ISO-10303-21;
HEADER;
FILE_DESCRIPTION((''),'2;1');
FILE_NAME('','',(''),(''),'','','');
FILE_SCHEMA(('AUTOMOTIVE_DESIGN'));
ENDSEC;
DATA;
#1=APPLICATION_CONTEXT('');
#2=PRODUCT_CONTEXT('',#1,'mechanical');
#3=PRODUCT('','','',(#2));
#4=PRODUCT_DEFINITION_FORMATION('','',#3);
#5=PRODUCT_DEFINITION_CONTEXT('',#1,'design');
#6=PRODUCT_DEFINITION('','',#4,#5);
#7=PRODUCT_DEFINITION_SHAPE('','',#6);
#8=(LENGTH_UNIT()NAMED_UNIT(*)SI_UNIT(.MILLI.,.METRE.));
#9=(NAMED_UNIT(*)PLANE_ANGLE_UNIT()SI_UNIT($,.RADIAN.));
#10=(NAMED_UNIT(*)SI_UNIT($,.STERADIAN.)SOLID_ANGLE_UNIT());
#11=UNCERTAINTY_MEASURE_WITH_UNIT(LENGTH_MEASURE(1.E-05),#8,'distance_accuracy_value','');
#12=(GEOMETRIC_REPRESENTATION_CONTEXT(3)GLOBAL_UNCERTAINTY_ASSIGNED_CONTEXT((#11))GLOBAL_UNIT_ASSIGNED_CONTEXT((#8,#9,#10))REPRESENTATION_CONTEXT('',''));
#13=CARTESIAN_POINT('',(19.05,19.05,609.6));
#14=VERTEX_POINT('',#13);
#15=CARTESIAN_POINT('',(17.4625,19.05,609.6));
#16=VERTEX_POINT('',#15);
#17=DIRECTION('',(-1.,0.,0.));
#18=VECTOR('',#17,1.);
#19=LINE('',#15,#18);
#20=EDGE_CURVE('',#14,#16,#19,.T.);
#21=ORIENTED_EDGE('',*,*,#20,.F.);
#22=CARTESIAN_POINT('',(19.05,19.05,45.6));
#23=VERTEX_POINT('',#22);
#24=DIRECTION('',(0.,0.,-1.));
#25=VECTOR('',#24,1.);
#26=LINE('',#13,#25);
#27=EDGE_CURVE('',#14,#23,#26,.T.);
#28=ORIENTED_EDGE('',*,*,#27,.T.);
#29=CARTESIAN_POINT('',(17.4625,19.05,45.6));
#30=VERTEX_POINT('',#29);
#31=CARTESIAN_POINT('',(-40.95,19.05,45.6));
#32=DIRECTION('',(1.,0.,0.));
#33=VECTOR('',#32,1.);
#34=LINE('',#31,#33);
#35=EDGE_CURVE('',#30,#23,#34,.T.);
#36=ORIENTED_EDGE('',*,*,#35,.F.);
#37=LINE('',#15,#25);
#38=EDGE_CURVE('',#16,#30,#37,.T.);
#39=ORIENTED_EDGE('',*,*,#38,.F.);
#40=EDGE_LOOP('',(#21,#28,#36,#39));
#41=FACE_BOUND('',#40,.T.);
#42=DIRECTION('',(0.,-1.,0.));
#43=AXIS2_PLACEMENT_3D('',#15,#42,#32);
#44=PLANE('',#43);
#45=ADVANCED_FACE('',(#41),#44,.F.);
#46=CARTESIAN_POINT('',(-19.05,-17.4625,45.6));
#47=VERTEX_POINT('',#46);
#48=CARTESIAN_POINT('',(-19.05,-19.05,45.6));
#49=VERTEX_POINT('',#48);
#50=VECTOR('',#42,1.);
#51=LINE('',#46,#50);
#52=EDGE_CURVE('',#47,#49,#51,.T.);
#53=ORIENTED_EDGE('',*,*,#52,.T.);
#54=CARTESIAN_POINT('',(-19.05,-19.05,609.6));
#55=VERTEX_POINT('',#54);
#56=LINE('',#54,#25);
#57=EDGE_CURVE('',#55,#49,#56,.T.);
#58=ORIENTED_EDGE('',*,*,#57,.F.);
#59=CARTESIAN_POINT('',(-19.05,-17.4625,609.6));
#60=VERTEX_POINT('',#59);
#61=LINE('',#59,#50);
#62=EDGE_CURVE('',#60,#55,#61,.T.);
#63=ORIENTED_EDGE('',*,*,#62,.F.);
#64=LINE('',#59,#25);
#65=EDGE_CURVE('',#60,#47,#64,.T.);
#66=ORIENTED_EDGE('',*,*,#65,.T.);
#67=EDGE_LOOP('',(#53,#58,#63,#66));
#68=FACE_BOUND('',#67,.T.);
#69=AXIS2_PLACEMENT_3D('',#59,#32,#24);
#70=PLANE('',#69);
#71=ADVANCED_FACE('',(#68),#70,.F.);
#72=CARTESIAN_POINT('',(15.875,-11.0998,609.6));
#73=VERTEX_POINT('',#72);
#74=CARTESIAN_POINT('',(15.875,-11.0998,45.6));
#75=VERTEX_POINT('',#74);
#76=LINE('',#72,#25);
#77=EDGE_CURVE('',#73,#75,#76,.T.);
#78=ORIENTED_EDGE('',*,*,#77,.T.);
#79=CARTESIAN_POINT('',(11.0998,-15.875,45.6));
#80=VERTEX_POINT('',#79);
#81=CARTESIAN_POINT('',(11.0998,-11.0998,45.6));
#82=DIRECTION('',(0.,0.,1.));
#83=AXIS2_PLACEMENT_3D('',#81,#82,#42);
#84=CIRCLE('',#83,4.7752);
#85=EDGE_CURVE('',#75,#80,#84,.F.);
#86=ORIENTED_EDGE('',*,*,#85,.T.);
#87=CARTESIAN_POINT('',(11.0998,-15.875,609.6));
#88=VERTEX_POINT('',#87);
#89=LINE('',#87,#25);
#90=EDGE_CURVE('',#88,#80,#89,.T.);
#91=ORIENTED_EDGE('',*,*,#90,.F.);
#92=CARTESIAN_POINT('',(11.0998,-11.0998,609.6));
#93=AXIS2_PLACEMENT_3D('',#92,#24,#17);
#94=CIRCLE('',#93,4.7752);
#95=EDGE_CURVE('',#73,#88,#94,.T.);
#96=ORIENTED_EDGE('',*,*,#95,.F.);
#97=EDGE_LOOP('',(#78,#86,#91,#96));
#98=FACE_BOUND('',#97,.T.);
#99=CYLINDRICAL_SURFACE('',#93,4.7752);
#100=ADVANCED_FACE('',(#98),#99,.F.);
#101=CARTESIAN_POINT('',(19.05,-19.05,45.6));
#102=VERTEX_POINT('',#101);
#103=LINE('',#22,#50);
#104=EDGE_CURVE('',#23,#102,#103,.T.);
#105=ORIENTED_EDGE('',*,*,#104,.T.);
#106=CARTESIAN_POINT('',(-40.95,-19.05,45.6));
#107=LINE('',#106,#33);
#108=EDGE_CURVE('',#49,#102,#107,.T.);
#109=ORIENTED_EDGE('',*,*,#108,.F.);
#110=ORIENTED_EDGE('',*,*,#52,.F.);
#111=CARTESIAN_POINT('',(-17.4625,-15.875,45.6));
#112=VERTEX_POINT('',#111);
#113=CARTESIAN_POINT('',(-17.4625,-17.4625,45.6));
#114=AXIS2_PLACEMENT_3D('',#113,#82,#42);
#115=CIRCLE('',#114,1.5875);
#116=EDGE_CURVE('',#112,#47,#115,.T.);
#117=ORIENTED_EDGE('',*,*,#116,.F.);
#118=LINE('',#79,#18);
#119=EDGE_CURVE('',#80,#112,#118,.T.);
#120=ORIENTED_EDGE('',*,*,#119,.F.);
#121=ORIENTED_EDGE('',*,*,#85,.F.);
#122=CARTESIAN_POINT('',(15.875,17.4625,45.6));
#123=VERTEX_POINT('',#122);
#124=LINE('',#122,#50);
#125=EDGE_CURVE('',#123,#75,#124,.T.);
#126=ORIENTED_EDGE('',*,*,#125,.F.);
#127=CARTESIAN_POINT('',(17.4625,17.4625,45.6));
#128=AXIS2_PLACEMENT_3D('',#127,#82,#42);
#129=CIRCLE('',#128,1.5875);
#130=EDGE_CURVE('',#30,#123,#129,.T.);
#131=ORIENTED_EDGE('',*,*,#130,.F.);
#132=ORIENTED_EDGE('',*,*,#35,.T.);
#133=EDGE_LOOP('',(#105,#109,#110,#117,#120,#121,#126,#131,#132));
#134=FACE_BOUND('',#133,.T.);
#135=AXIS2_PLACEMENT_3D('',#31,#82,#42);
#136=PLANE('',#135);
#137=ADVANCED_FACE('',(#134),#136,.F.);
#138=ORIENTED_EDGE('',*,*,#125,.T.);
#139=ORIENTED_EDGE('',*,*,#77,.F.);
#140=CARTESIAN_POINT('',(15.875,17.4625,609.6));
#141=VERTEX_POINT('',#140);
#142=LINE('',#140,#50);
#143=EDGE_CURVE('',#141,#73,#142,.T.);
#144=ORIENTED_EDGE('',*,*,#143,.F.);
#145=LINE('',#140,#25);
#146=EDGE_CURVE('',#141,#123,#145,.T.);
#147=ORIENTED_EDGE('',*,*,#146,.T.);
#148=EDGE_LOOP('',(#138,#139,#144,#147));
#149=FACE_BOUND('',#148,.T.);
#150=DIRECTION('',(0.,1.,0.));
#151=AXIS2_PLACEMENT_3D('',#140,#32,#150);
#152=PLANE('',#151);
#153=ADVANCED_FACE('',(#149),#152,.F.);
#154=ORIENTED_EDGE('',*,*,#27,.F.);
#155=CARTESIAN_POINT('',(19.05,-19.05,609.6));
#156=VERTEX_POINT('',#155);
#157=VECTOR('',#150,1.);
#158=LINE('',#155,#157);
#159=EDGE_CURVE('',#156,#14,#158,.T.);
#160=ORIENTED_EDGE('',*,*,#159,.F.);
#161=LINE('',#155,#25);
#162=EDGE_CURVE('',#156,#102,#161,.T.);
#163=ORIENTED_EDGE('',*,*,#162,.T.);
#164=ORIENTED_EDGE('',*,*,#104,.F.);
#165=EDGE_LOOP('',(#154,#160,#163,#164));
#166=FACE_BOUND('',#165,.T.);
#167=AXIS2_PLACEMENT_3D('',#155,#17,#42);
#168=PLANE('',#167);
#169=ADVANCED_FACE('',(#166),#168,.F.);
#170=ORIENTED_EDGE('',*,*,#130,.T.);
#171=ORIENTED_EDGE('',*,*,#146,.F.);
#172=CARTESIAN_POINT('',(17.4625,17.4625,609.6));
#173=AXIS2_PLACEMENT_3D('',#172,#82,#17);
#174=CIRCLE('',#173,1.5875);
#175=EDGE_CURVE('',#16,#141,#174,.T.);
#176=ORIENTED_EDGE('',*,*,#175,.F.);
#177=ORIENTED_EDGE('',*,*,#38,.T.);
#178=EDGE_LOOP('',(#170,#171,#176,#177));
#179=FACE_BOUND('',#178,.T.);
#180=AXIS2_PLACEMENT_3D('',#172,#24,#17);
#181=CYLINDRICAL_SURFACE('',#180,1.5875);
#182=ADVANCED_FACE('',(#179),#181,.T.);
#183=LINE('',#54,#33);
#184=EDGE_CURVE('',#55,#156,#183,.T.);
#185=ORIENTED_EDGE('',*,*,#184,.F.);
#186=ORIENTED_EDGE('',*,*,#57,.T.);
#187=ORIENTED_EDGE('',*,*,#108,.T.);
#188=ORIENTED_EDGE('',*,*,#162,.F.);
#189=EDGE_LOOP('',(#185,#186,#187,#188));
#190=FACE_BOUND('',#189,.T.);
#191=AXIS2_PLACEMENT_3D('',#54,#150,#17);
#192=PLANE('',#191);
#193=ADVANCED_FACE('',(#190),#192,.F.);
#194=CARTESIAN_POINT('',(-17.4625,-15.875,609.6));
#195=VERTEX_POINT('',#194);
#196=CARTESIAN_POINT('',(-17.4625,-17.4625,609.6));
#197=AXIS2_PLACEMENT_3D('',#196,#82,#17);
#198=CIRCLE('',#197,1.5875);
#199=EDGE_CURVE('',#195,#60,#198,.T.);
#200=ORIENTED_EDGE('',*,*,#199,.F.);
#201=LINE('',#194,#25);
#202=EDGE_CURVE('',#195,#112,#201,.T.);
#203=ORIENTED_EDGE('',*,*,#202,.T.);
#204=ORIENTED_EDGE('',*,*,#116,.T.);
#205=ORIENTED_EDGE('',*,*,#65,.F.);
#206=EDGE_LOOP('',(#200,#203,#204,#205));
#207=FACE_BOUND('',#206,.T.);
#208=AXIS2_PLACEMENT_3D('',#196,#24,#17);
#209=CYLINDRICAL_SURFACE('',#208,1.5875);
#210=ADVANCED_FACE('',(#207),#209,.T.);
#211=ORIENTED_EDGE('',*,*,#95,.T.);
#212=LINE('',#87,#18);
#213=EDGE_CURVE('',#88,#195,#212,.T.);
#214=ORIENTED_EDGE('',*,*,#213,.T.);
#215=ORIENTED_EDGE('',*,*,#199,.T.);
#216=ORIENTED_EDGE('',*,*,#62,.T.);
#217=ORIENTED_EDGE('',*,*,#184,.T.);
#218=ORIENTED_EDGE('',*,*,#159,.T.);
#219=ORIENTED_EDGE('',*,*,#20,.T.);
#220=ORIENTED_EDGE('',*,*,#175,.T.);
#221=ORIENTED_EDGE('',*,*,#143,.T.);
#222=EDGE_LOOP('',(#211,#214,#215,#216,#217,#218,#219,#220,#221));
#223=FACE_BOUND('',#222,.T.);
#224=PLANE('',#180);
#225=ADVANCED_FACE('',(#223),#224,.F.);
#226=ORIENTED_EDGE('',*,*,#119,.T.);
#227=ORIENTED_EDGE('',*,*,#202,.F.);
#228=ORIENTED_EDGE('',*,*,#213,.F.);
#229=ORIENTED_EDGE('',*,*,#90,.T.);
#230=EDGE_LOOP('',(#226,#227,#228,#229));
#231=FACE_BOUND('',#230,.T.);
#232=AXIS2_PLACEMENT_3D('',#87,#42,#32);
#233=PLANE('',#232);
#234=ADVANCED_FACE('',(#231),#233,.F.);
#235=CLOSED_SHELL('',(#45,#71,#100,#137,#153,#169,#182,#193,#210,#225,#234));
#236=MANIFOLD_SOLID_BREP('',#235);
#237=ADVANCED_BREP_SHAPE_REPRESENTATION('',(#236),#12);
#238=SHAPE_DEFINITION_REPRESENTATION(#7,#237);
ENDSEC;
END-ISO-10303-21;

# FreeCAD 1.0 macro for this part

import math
import FreeCAD as App
import Part
import Sketcher
from FreeCAD import Vector
Q = App.Units.Quantity

doc = App.newDocument("Part")
body = doc.addObject("PartDesign::Body", "Body")

sketch1 = body.newObject("Sketcher::SketchObject", "Sketch")
sketch1.AttachmentSupport = (doc.getObject("XY_Plane"), [""])
sketch1.MapMode = "FlatFace"
sketch1.addGeometry(Part.LineSegment(Vector(-19.1, -19.1, 0), Vector(19.1, -19.1, 0)), False)
sketch1.addGeometry(Part.LineSegment(Vector(19.1, -19.1, 0), Vector(19.1, 19.1, 0)), False)
sketch1.addGeometry(Part.LineSegment(Vector(19.1, 19.1, 0), Vector(17.5, 19.1, 0)), False)
sketch1.addGeometry(Part.ArcOfCircle(Part.Circle(Vector(17.5, 17.5, 0), Vector(0, 0, 1), 1.6), math.radians(90), math.radians(180)), False)
sketch1.addGeometry(Part.LineSegment(Vector(15.9, 17.5, 0), Vector(15.9, -11.1, 0)), False)
sketch1.addGeometry(Part.ArcOfCircle(Part.Circle(Vector(11.1, -11.1, 0), Vector(0, 0, 1), 4.8), math.radians(-90), math.radians(0)), False)
sketch1.addGeometry(Part.LineSegment(Vector(11.1, -15.9, 0), Vector(-17.5, -15.9, 0)), False)
sketch1.addGeometry(Part.ArcOfCircle(Part.Circle(Vector(-17.5, -17.5, 0), Vector(0, 0, 1), 1.6), math.radians(90), math.radians(180)), False)
sketch1.addGeometry(Part.LineSegment(Vector(-19.1, -17.5, 0), Vector(-19.1, -19.1, 0)), False)
sketch1.addConstraint(Sketcher.Constraint("Coincident", 0, 2, 1, 1))
sketch1.addConstraint(Sketcher.Constraint("Coincident", 1, 2, 2, 1))
sketch1.addConstraint(Sketcher.Constraint("Tangent", 2, 2, 3, 1))
sketch1.addConstraint(Sketcher.Constraint("Tangent", 3, 2, 4, 1))
sketch1.addConstraint(Sketcher.Constraint("Tangent", 4, 2, 5, 2))
sketch1.addConstraint(Sketcher.Constraint("Tangent", 5, 1, 6, 1))
sketch1.addConstraint(Sketcher.Constraint("Tangent", 6, 2, 7, 1))
sketch1.addConstraint(Sketcher.Constraint("Tangent", 7, 2, 8, 1))
sketch1.addConstraint(Sketcher.Constraint("Coincident", 8, 2, 0, 1))
sketch1.addConstraint(Sketcher.Constraint("Horizontal", 0))
sketch1.addConstraint(Sketcher.Constraint("Vertical", 1))
sketch1.addConstraint(Sketcher.Constraint("Horizontal", 2))
sketch1.addConstraint(Sketcher.Constraint("Vertical", 4))
sketch1.addConstraint(Sketcher.Constraint("Horizontal", 6))
sketch1.addConstraint(Sketcher.Constraint("Vertical", 8))
sketch1.addConstraint(Sketcher.Constraint("Equal", 3, 7))
sketch1.addConstraint(Sketcher.Constraint("Symmetric", 3, 3, 7, 3, -1, 1))
sketch1.addConstraint(Sketcher.Constraint("Symmetric", 1, 2, 8, 2, -1, 1))
sketch1.addConstraint(Sketcher.Constraint("Equal", 0, 1))
sketch1.addConstraint(Sketcher.Constraint("DistanceX", 0, 1, 0, 2, Q("1.5 in")))
sketch1.addConstraint(Sketcher.Constraint("Radius", 3, Q("0.0625 in")))
sketch1.addConstraint(Sketcher.Constraint("Radius", 5, Q("0.188 in")))
pad1 = body.newObject("PartDesign::Pad", "Pad")
pad1.Profile = sketch1
pad1.Length = Q("48 in")
pad1.Midplane = True

sketch2 = body.newObject("Sketcher::SketchObject", "Sketch001")
sketch2.AttachmentSupport = (doc.getObject("YZ_Plane"), [""])
sketch2.MapMode = "FlatFace"
sketch2.AttachmentOffset = App.Placement(Vector(0, 0, 0.75 * 25.4), App.Rotation())
sketch2.addGeometry(Part.LineSegment(Vector(19, 26, 0), Vector(-19, 26, 0)), False)
sketch2.addGeometry(Part.LineSegment(Vector(-19, 26, 0), Vector(-19, -610, 0)), False)
sketch2.addGeometry(Part.LineSegment(Vector(-19, -610, 0), Vector(19, -610, 0)), False)
sketch2.addGeometry(Part.LineSegment(Vector(19, -610, 0), Vector(19, 26, 0)), False)
sketch2.addConstraint(Sketcher.Constraint("Coincident", 0, 2, 1, 1))
sketch2.addConstraint(Sketcher.Constraint("Coincident", 1, 2, 2, 1))
sketch2.addConstraint(Sketcher.Constraint("Coincident", 2, 2, 3, 1))
sketch2.addConstraint(Sketcher.Constraint("Coincident", 3, 2, 0, 1))
sketch2.addConstraint(Sketcher.Constraint("Horizontal", 0))
sketch2.addConstraint(Sketcher.Constraint("Vertical", 1))
sketch2.addConstraint(Sketcher.Constraint("Horizontal", 2))
sketch2.addConstraint(Sketcher.Constraint("Vertical", 3))
sketch2.addConstraint(Sketcher.Constraint("DistanceX", 0, 2, 0, 1, Q("1.5 in")))
sketch2.addConstraint(Sketcher.Constraint("DistanceY", 1, 2, -1, 1, Q("24 in")))
sketch2.addConstraint(Sketcher.Constraint("DistanceX", 0, 2, -1, 1, Q("0.75 in")))
sketch2.addConstraint(Sketcher.Constraint("DistanceY", 1, 2, 1, 1, Q("635.2 mm")))
pocket1 = body.newObject("PartDesign::Pocket", "Pocket")
pocket1.Profile = sketch2
pocket1.Length = 60

sketch3 = body.newObject("Sketcher::SketchObject", "Sketch002")
sketch3.AttachmentSupport = (doc.getObject("YZ_Plane"), [""])
sketch3.MapMode = "FlatFace"
sketch3.AttachmentOffset = App.Placement(Vector(0, 0, 0.75 * 25.4), App.Rotation())
sketch3.addGeometry(Part.LineSegment(Vector(19, 46, 0), Vector(-19, 46, 0)), False)
sketch3.addGeometry(Part.LineSegment(Vector(-19, 46, 0), Vector(-19, 26, 0)), False)
sketch3.addGeometry(Part.LineSegment(Vector(-19, 26, 0), Vector(19, 26, 0)), False)
sketch3.addGeometry(Part.LineSegment(Vector(19, 26, 0), Vector(19, 46, 0)), False)
sketch3.addConstraint(Sketcher.Constraint("Coincident", 0, 2, 1, 1))
sketch3.addConstraint(Sketcher.Constraint("Coincident", 1, 2, 2, 1))
sketch3.addConstraint(Sketcher.Constraint("Coincident", 2, 2, 3, 1))
sketch3.addConstraint(Sketcher.Constraint("Coincident", 3, 2, 0, 1))
sketch3.addConstraint(Sketcher.Constraint("Horizontal", 0))
sketch3.addConstraint(Sketcher.Constraint("Vertical", 1))
sketch3.addConstraint(Sketcher.Constraint("Horizontal", 2))
sketch3.addConstraint(Sketcher.Constraint("Vertical", 3))
sketch3.addConstraint(Sketcher.Constraint("DistanceX", 0, 2, 0, 1, Q("1.5 in")))
sketch3.addConstraint(Sketcher.Constraint("DistanceX", 0, 2, -1, 1, Q("0.75 in")))
sketch3.addConstraint(Sketcher.Constraint("DistanceY", 1, 2, 1, 1, Q("20 mm")))
sketch3.addConstraint(Sketcher.Constraint("DistanceY", -1, 1, 0, 2, Q("45.6 mm")))
pocket2 = body.newObject("PartDesign::Pocket", "Pocket001")
pocket2.Profile = sketch3
pocket2.Length = 60

doc.recompute()
